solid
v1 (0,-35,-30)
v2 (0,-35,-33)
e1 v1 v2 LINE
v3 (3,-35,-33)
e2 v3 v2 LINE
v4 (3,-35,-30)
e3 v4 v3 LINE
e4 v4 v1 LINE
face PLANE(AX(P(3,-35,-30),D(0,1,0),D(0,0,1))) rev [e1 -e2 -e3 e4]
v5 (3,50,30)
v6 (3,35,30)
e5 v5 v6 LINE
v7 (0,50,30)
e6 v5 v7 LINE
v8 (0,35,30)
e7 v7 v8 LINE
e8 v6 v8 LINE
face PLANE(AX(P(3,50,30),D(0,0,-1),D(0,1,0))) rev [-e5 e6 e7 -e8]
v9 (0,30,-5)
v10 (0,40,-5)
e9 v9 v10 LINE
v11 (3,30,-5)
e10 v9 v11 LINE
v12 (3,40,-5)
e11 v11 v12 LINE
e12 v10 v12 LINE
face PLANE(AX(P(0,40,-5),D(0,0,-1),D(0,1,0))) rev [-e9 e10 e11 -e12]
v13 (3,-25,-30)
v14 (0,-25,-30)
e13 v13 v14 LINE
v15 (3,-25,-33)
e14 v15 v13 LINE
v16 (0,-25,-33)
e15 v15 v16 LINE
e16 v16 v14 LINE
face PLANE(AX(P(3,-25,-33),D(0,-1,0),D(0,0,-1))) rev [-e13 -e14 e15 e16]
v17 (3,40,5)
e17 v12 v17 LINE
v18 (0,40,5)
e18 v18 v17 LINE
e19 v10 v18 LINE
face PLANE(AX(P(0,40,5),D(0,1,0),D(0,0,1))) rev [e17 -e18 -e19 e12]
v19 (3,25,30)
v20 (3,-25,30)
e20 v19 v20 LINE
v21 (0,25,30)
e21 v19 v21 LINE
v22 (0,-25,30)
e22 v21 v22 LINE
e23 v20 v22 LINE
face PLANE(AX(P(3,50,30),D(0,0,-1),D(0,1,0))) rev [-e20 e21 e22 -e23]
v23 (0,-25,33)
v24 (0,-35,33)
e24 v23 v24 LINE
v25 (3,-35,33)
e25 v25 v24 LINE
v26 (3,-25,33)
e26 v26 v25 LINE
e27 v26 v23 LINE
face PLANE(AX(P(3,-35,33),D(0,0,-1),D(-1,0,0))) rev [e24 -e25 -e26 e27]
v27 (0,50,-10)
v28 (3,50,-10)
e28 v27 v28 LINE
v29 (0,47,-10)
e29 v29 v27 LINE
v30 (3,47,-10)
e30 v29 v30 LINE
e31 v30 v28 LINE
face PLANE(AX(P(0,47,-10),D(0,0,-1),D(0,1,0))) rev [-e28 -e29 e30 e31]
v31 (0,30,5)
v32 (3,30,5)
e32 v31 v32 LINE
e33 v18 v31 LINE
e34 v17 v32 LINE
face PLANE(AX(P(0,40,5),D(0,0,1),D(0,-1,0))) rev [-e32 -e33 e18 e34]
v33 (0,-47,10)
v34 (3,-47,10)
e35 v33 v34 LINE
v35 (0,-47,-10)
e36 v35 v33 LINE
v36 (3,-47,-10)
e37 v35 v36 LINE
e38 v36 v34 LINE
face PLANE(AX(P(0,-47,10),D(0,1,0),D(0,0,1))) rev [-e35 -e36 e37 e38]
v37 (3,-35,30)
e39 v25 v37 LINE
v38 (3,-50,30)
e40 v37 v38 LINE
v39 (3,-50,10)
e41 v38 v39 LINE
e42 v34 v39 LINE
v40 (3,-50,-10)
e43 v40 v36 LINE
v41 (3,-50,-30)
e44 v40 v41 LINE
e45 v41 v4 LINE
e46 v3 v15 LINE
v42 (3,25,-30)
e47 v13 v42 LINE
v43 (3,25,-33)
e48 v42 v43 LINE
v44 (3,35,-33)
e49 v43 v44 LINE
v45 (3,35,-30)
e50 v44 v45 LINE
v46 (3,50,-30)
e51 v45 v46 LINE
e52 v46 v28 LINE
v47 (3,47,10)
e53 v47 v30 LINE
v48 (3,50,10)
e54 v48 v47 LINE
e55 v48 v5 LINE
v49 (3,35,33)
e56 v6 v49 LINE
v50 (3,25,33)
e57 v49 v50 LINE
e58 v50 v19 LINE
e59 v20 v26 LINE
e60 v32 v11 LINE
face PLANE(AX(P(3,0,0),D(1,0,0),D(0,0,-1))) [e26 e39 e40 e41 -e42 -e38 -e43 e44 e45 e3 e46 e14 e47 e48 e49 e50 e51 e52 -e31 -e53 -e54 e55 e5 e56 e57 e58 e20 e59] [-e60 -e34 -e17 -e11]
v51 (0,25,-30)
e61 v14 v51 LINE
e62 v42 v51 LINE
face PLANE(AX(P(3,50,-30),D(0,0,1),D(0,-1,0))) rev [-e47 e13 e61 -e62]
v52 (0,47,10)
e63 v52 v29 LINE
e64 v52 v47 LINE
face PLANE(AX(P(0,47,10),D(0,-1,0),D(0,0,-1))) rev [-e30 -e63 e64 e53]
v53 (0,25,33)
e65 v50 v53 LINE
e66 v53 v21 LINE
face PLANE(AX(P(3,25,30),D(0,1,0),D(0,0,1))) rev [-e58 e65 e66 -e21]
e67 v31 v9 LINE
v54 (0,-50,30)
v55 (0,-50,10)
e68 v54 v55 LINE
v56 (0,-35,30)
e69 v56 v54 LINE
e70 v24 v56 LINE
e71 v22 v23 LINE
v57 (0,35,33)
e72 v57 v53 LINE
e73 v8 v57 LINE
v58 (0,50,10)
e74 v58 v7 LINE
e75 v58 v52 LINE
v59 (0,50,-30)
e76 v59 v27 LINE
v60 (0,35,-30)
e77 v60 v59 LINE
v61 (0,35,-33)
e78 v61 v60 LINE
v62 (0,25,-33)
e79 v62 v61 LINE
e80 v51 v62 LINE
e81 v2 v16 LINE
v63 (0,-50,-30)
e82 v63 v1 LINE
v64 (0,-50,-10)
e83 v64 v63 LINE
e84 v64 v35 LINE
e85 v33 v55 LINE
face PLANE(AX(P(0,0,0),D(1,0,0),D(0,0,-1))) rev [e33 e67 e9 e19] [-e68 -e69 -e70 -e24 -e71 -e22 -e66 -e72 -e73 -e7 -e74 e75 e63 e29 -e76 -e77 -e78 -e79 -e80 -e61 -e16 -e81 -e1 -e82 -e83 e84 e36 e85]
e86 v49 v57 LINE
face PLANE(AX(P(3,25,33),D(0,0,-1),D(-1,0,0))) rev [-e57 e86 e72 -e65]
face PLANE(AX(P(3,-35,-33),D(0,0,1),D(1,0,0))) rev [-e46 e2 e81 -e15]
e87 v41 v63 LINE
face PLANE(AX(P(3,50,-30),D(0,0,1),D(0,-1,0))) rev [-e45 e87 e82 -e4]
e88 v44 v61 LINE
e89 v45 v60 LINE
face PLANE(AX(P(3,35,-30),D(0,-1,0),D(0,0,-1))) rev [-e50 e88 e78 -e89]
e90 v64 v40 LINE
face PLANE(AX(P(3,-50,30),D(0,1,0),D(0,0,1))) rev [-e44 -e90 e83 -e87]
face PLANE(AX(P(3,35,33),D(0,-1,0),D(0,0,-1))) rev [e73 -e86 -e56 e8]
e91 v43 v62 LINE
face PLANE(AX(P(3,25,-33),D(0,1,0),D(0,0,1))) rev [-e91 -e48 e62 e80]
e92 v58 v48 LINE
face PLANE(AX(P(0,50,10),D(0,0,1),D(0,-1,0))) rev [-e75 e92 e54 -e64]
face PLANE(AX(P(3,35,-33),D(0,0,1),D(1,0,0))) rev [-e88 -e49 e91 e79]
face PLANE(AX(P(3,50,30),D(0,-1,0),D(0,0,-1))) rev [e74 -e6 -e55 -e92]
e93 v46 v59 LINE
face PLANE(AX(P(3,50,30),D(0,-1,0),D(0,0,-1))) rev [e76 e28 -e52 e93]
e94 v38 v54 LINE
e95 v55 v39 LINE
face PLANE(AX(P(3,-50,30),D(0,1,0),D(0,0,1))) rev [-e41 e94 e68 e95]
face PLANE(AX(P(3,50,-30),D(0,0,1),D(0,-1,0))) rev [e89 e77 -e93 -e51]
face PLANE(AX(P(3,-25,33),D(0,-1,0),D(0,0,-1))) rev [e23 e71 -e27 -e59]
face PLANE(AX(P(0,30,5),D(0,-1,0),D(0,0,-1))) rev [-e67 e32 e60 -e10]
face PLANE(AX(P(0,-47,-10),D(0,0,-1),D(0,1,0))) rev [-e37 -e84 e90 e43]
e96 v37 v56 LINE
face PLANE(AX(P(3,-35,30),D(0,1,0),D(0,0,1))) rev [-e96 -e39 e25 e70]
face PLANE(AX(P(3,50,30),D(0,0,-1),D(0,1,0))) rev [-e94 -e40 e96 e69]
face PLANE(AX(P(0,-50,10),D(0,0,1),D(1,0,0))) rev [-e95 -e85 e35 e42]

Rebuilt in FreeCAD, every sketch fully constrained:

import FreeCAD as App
import Part
import Sketcher

V = App.Vector
Q = App.Units.Quantity


def add_polygon(sketch, points):
    """Adds a closed chain of lines whose ends are joined by coincident constraints."""
    first, n = sketch.GeometryCount, len(points)
    for a, b in zip(points, points[1:] + points[:1]):
        sketch.addGeometry(Part.LineSegment(App.Vector(*a, 0), App.Vector(*b, 0)), False)
    for i in range(n):
        sketch.addConstraint(Sketcher.Constraint("Coincident", first + i, 2, first + (i + 1) % n, 1))

doc = App.newDocument("Part")
body = doc.addObject("PartDesign::Body", "Body")

# Sketch on YZ plane
sketch1 = body.newObject("Sketcher::SketchObject", "Sketch")
sketch1.AttachmentSupport = (doc.getObject("YZ_Plane"), [""])
sketch1.MapMode = "FlatFace"
add_polygon(sketch1, [(50, 30), (-50, 30), (-50, -30), (50, -30)])  # lines 0-3
sketch1.addConstraint(Sketcher.Constraint("Horizontal", 0))
sketch1.addConstraint(Sketcher.Constraint("Vertical", 1))
sketch1.addConstraint(Sketcher.Constraint("Horizontal", 2))
sketch1.addConstraint(Sketcher.Constraint("Vertical", 3))
sketch1.addConstraint(Sketcher.Constraint("Symmetric", 0, 2, 2, 2, -1, 1))
sketch1.addConstraint(Sketcher.Constraint("DistanceX", 0, 2, 0, 1, Q("100 mm")))
sketch1.addConstraint(Sketcher.Constraint("DistanceY", 1, 2, 1, 1, Q("60 mm")))
pad1 = body.newObject("PartDesign::Pad", "Pad")
pad1.Profile = sketch1
pad1.Length = 3

# Sketch on YZ plane
sketch2 = body.newObject("Sketcher::SketchObject", "Sketch001")
sketch2.AttachmentSupport = (doc.getObject("YZ_Plane"), [""])
sketch2.MapMode = "FlatFace"
add_polygon(sketch2, [(-25, 33), (-35, 33), (-35, 30), (-25, 30)])  # lines 0-3
add_polygon(sketch2, [(35, 33), (25, 33), (25, 30), (35, 30)])  # lines 4-7
add_polygon(sketch2, [(35, -30), (25, -30), (25, -33), (35, -33)])  # lines 8-11
add_polygon(sketch2, [(-25, -30), (-35, -30), (-35, -33), (-25, -33)])  # lines 12-15
sketch2.addConstraint(Sketcher.Constraint("Horizontal", 0))
sketch2.addConstraint(Sketcher.Constraint("Vertical", 1))
sketch2.addConstraint(Sketcher.Constraint("Horizontal", 2))
sketch2.addConstraint(Sketcher.Constraint("Vertical", 3))
sketch2.addConstraint(Sketcher.Constraint("Horizontal", 4))
sketch2.addConstraint(Sketcher.Constraint("Vertical", 5))
sketch2.addConstraint(Sketcher.Constraint("Horizontal", 6))
sketch2.addConstraint(Sketcher.Constraint("Vertical", 7))
sketch2.addConstraint(Sketcher.Constraint("Horizontal", 8))
sketch2.addConstraint(Sketcher.Constraint("Vertical", 9))
sketch2.addConstraint(Sketcher.Constraint("Horizontal", 10))
sketch2.addConstraint(Sketcher.Constraint("Vertical", 11))
sketch2.addConstraint(Sketcher.Constraint("Horizontal", 12))
sketch2.addConstraint(Sketcher.Constraint("Vertical", 13))
sketch2.addConstraint(Sketcher.Constraint("Horizontal", 14))
sketch2.addConstraint(Sketcher.Constraint("Vertical", 15))
sketch2.addConstraint(Sketcher.Constraint("Symmetric", 2, 2, 8, 2, -1, 1))
sketch2.addConstraint(Sketcher.Constraint("Symmetric", 0, 2, 10, 2, -1, 1))
sketch2.addConstraint(Sketcher.Constraint("Symmetric", 6, 2, 12, 2, -1, 1))
sketch2.addConstraint(Sketcher.Constraint("Symmetric", 4, 2, 14, 2, -1, 1))
sketch2.addConstraint(Sketcher.Constraint("Symmetric", 3, 2, 4, 2, -2))
sketch2.addConstraint(Sketcher.Constraint("Symmetric", 1, 2, 6, 2, -2))
sketch2.addConstraint(Sketcher.Constraint("DistanceX", 0, 2, 0, 1, Q("10 mm")))
sketch2.addConstraint(Sketcher.Constraint("DistanceY", 1, 2, 1, 1, Q("3 mm")))
sketch2.addConstraint(Sketcher.Constraint("DistanceX", 0, 2, -1, 1, Q("35 mm")))
sketch2.addConstraint(Sketcher.Constraint("DistanceY", -1, 1, 0, 2, Q("33 mm")))
pad2 = body.newObject("PartDesign::Pad", "Pad001")
pad2.Profile = sketch2
pad2.Length = 3

# Sketch on YZ plane
sketch3 = body.newObject("Sketcher::SketchObject", "Sketch002")
sketch3.AttachmentSupport = (doc.getObject("YZ_Plane"), [""])
sketch3.MapMode = "FlatFace"
sketch3.AttachmentOffset = App.Placement(V(0, 0, 3), App.Rotation())
add_polygon(sketch3, [(50, 10), (47, 10), (47, -10), (50, -10)])  # lines 0-3
add_polygon(sketch3, [(-47, 10), (-50, 10), (-50, -10), (-47, -10)])  # lines 4-7
sketch3.addConstraint(Sketcher.Constraint("Horizontal", 0))
sketch3.addConstraint(Sketcher.Constraint("Vertical", 1))
sketch3.addConstraint(Sketcher.Constraint("Horizontal", 2))
sketch3.addConstraint(Sketcher.Constraint("Vertical", 3))
sketch3.addConstraint(Sketcher.Constraint("Horizontal", 4))
sketch3.addConstraint(Sketcher.Constraint("Vertical", 5))
sketch3.addConstraint(Sketcher.Constraint("Horizontal", 6))
sketch3.addConstraint(Sketcher.Constraint("Vertical", 7))
sketch3.addConstraint(Sketcher.Constraint("Symmetric", 2, 2, 4, 2, -1, 1))
sketch3.addConstraint(Sketcher.Constraint("Symmetric", 0, 2, 6, 2, -1, 1))
sketch3.addConstraint(Sketcher.Constraint("Horizontal", 3, 2, 4, 2))
sketch3.addConstraint(Sketcher.Constraint("DistanceX", 0, 2, 0, 1, Q("3 mm")))
sketch3.addConstraint(Sketcher.Constraint("DistanceY", 1, 2, 1, 1, Q("20 mm")))
sketch3.addConstraint(Sketcher.Constraint("DistanceX", -1, 1, 0, 2, Q("47 mm")))
pocket1 = body.newObject("PartDesign::Pocket", "Pocket")
pocket1.Profile = sketch3
pocket1.Length = 3

# Sketch on YZ plane
sketch4 = body.newObject("Sketcher::SketchObject", "Sketch003")
sketch4.AttachmentSupport = (doc.getObject("YZ_Plane"), [""])
sketch4.MapMode = "FlatFace"
sketch4.AttachmentOffset = App.Placement(V(0, 0, 3), App.Rotation())
add_polygon(sketch4, [(40, 5), (30, 5), (30, -5), (40, -5)])  # lines 0-3
sketch4.addConstraint(Sketcher.Constraint("Horizontal", 0))
sketch4.addConstraint(Sketcher.Constraint("Vertical", 1))
sketch4.addConstraint(Sketcher.Constraint("Horizontal", 2))
sketch4.addConstraint(Sketcher.Constraint("Vertical", 3))
sketch4.addConstraint(Sketcher.Constraint("Equal", 2, 1))
sketch4.addConstraint(Sketcher.Constraint("DistanceX", 0, 2, 0, 1, Q("10 mm")))
sketch4.addConstraint(Sketcher.Constraint("DistanceX", -1, 1, 0, 2, Q("30 mm")))
sketch4.addConstraint(Sketcher.Constraint("DistanceY", -1, 1, 0, 2, Q("5 mm")))
pocket2 = body.newObject("PartDesign::Pocket", "Pocket001")
pocket2.Profile = sketch4
pocket2.Length = 3

doc.recompute()
